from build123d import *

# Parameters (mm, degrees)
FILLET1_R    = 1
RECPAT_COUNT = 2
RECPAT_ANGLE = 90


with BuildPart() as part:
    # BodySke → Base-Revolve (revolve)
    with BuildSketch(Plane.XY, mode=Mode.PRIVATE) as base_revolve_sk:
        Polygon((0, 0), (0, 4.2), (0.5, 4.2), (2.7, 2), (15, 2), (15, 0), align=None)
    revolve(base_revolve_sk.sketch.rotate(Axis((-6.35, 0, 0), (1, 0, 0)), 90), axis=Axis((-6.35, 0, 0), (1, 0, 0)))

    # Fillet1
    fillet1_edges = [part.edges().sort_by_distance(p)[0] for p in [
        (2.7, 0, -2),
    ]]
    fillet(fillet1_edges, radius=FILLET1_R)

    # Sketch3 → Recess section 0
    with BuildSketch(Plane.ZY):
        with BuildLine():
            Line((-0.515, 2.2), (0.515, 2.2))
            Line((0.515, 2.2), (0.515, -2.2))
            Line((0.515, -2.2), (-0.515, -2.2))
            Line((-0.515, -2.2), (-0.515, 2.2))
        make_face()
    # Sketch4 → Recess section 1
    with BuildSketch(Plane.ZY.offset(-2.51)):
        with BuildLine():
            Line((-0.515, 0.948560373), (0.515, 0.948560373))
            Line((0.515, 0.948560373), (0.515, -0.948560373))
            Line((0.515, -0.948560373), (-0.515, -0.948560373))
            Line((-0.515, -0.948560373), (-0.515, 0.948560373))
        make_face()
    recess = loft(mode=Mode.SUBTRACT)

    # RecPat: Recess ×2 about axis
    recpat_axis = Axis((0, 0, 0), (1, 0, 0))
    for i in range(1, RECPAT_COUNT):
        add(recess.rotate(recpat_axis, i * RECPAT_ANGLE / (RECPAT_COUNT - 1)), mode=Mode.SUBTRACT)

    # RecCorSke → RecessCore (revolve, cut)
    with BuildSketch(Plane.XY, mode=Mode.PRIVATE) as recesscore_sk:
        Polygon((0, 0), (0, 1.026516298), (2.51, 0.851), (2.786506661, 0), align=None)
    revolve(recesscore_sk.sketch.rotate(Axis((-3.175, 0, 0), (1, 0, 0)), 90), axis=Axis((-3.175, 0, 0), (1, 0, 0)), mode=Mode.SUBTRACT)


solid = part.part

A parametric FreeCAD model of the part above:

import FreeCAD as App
import Part
import Sketcher
from FreeCAD import Vector
Q = App.Units.Quantity


def edges_at(feature, points):
    """Names of the edges that pass closest to the given points."""
    edges = feature.Shape.Edges
    near = lambda p: min(range(len(edges)), key=lambda i: edges[i].distToShape(Part.Vertex(*p))[0])
    return sorted({f"Edge{near(p) + 1}" for p in points})

doc = App.newDocument("Part")
body = doc.addObject("PartDesign::Body", "Body")

# Sketch on XY plane
sketch1 = body.newObject("Sketcher::SketchObject", "Sketch")
sketch1.AttachmentSupport = (doc.getObject("XY_Plane"), [""])
sketch1.MapMode = "FlatFace"
sketch1.addGeometry([
    Part.LineSegment(Vector(0, 4.2, 0), Vector(0, 0, 0)),  # 0
    Part.LineSegment(Vector(0, 0, 0), Vector(15, 0, 0)),  # 1
    Part.LineSegment(Vector(15, 0, 0), Vector(15, 2, 0)),  # 2
    Part.LineSegment(Vector(15, 2, 0), Vector(2.7, 2, 0)),  # 3
    Part.LineSegment(Vector(2.7, 2, 0), Vector(0.5, 4.2, 0)),  # 4
    Part.LineSegment(Vector(0.5, 4.2, 0), Vector(0, 4.2, 0)),  # 5
], False)
sketch1.addConstraint([
    Sketcher.Constraint("Coincident", 0, 2, 1, 1),
    Sketcher.Constraint("Coincident", 1, 2, 2, 1),
    Sketcher.Constraint("Coincident", 2, 2, 3, 1),
    Sketcher.Constraint("Coincident", 3, 2, 4, 1),
    Sketcher.Constraint("Coincident", 4, 2, 5, 1),
    Sketcher.Constraint("Coincident", 5, 2, 0, 1),
    Sketcher.Constraint("Vertical", 0),
    Sketcher.Constraint("Horizontal", 1),
    Sketcher.Constraint("Vertical", 2),
    Sketcher.Constraint("Horizontal", 3),
    Sketcher.Constraint("Horizontal", 5),
    Sketcher.Constraint("Coincident", 0, 2, -1, 1),
    Sketcher.Constraint("DistanceX", 1, 1, 1, 2, Q("15 mm")),
    Sketcher.Constraint("DistanceY", 2, 1, 2, 2, Q("2 mm")),
    Sketcher.Constraint("Angle", 4, Q("135 deg")),
    Sketcher.Constraint("DistanceX", 3, 2, 3, 1, Q("12.3 mm")),
    Sketcher.Constraint("DistanceX", 5, 2, 5, 1, Q("0.5 mm")),
])
revolution = body.newObject("PartDesign::Revolution", "Revolution")
revolution.Profile = sketch1
revolution.ReferenceAxis = (sketch1, ["H_Axis"])
revolution.Angle = 360
doc.recompute()

fillet = body.newObject("PartDesign::Fillet", "Fillet")
fillet.Base = (revolution, edges_at(revolution, [(2.7, 0, -2)]))
fillet.Radius = 1

# Sketch on YZ plane
sketch2 = body.newObject("Sketcher::SketchObject", "Sketch001")
sketch2.AttachmentSupport = (doc.getObject("YZ_Plane"), [""])
sketch2.MapMode = "FlatFace"
sketch2.addGeometry([
    Part.LineSegment(Vector(2.2, 0.515, 0), Vector(2.2, -0.515, 0)),
    Part.LineSegment(Vector(2.2, -0.515, 0), Vector(-2.2, -0.515, 0)),
    Part.LineSegment(Vector(-2.2, -0.515, 0), Vector(-2.2, 0.515, 0)),
    Part.LineSegment(Vector(-2.2, 0.515, 0), Vector(2.2, 0.515, 0)),
], False)
sketch2.addConstraint([
    Sketcher.Constraint("Coincident", 0, 2, 1, 1),
    Sketcher.Constraint("Coincident", 1, 2, 2, 1),
    Sketcher.Constraint("Coincident", 2, 2, 3, 1),
    Sketcher.Constraint("Coincident", 3, 2, 0, 1),
    Sketcher.Constraint("Vertical", 0),
    Sketcher.Constraint("Horizontal", 1),
    Sketcher.Constraint("Vertical", 2),
    Sketcher.Constraint("Horizontal", 3),
    Sketcher.Constraint("Symmetric", 0, 2, 2, 2, -1, 1),
    Sketcher.Constraint("DistanceX", 1, 2, 1, 1, Q("4.4 mm")),
    Sketcher.Constraint("DistanceY", 0, 2, 0, 1, Q("1.03 mm")),
])

# Sketch on YZ plane
sketch3 = body.newObject("Sketcher::SketchObject", "Sketch002")
sketch3.AttachmentSupport = (doc.getObject("YZ_Plane"), [""])
sketch3.MapMode = "FlatFace"
sketch3.AttachmentOffset = App.Placement(Vector(0, 0, 2.51), App.Rotation())
sketch3.addGeometry([
    Part.LineSegment(Vector(0.94856, 0.515, 0), Vector(0.94856, -0.515, 0)),
    Part.LineSegment(Vector(0.94856, -0.515, 0), Vector(-0.94856, -0.515, 0)),
    Part.LineSegment(Vector(-0.94856, -0.515, 0), Vector(-0.94856, 0.515, 0)),
    Part.LineSegment(Vector(-0.94856, 0.515, 0), Vector(0.94856, 0.515, 0)),
], False)
sketch3.addConstraint([
    Sketcher.Constraint("Coincident", 0, 2, 1, 1),
    Sketcher.Constraint("Coincident", 1, 2, 2, 1),
    Sketcher.Constraint("Coincident", 2, 2, 3, 1),
    Sketcher.Constraint("Coincident", 3, 2, 0, 1),
    Sketcher.Constraint("Vertical", 0),
    Sketcher.Constraint("Horizontal", 1),
    Sketcher.Constraint("Vertical", 2),
    Sketcher.Constraint("Horizontal", 3),
    Sketcher.Constraint("Symmetric", 0, 2, 2, 2, -1, 1),
    Sketcher.Constraint("DistanceY", 0, 2, 0, 1, Q("1.03 mm")),
    Sketcher.Constraint("DistanceX", 1, 2, 1, 1, Q("1.897121 mm")),
])

subtractiveloft = body.newObject("PartDesign::SubtractiveLoft", "SubtractiveLoft")
subtractiveloft.Profile = sketch2
subtractiveloft.Sections = [sketch3]
doc.recompute()

polarpattern = body.newObject("PartDesign::PolarPattern", "PolarPattern")
polarpattern.Originals = [subtractiveloft]
polarpattern.Axis = (doc.getObject("X_Axis"), [""])
polarpattern.Angle = 90
polarpattern.Occurrences = 2
body.Tip = polarpattern

# Sketch on XY plane
sketch4 = body.newObject("Sketcher::SketchObject", "Sketch003")
sketch4.AttachmentSupport = (doc.getObject("XY_Plane"), [""])
sketch4.MapMode = "FlatFace"
sketch4.addGeometry([
    Part.LineSegment(Vector(0, 1.026516, 0), Vector(0, 0, 0)),
    Part.LineSegment(Vector(0, 0, 0), Vector(2.786507, 0, 0)),
    Part.LineSegment(Vector(2.786507, 0, 0), Vector(2.51, 0.851, 0)),
    Part.LineSegment(Vector(2.51, 0.851, 0), Vector(0, 1.026516, 0)),
], False)
sketch4.addConstraint([
    Sketcher.Constraint("Coincident", 0, 2, 1, 1),
    Sketcher.Constraint("Coincident", 1, 2, 2, 1),
    Sketcher.Constraint("Coincident", 2, 2, 3, 1),
    Sketcher.Constraint("Coincident", 3, 2, 0, 1),
    Sketcher.Constraint("Vertical", 0),
    Sketcher.Constraint("Horizontal", 1),
    Sketcher.Constraint("Coincident", 0, 2, -1, 1),
    Sketcher.Constraint("Angle", 2, Q("108 deg")),
    Sketcher.Constraint("Angle", 3, Q("176 deg")),
    Sketcher.Constraint("DistanceX", -1, 1, 2, 2, Q("2.51 mm")),
    Sketcher.Constraint("DistanceY", -1, 1, 2, 2, Q("0.851 mm")),
])
groove = body.newObject("PartDesign::Groove", "Groove")
groove.Profile = sketch4
groove.ReferenceAxis = (sketch4, ["H_Axis"])
groove.Angle = 360

doc.recompute()
